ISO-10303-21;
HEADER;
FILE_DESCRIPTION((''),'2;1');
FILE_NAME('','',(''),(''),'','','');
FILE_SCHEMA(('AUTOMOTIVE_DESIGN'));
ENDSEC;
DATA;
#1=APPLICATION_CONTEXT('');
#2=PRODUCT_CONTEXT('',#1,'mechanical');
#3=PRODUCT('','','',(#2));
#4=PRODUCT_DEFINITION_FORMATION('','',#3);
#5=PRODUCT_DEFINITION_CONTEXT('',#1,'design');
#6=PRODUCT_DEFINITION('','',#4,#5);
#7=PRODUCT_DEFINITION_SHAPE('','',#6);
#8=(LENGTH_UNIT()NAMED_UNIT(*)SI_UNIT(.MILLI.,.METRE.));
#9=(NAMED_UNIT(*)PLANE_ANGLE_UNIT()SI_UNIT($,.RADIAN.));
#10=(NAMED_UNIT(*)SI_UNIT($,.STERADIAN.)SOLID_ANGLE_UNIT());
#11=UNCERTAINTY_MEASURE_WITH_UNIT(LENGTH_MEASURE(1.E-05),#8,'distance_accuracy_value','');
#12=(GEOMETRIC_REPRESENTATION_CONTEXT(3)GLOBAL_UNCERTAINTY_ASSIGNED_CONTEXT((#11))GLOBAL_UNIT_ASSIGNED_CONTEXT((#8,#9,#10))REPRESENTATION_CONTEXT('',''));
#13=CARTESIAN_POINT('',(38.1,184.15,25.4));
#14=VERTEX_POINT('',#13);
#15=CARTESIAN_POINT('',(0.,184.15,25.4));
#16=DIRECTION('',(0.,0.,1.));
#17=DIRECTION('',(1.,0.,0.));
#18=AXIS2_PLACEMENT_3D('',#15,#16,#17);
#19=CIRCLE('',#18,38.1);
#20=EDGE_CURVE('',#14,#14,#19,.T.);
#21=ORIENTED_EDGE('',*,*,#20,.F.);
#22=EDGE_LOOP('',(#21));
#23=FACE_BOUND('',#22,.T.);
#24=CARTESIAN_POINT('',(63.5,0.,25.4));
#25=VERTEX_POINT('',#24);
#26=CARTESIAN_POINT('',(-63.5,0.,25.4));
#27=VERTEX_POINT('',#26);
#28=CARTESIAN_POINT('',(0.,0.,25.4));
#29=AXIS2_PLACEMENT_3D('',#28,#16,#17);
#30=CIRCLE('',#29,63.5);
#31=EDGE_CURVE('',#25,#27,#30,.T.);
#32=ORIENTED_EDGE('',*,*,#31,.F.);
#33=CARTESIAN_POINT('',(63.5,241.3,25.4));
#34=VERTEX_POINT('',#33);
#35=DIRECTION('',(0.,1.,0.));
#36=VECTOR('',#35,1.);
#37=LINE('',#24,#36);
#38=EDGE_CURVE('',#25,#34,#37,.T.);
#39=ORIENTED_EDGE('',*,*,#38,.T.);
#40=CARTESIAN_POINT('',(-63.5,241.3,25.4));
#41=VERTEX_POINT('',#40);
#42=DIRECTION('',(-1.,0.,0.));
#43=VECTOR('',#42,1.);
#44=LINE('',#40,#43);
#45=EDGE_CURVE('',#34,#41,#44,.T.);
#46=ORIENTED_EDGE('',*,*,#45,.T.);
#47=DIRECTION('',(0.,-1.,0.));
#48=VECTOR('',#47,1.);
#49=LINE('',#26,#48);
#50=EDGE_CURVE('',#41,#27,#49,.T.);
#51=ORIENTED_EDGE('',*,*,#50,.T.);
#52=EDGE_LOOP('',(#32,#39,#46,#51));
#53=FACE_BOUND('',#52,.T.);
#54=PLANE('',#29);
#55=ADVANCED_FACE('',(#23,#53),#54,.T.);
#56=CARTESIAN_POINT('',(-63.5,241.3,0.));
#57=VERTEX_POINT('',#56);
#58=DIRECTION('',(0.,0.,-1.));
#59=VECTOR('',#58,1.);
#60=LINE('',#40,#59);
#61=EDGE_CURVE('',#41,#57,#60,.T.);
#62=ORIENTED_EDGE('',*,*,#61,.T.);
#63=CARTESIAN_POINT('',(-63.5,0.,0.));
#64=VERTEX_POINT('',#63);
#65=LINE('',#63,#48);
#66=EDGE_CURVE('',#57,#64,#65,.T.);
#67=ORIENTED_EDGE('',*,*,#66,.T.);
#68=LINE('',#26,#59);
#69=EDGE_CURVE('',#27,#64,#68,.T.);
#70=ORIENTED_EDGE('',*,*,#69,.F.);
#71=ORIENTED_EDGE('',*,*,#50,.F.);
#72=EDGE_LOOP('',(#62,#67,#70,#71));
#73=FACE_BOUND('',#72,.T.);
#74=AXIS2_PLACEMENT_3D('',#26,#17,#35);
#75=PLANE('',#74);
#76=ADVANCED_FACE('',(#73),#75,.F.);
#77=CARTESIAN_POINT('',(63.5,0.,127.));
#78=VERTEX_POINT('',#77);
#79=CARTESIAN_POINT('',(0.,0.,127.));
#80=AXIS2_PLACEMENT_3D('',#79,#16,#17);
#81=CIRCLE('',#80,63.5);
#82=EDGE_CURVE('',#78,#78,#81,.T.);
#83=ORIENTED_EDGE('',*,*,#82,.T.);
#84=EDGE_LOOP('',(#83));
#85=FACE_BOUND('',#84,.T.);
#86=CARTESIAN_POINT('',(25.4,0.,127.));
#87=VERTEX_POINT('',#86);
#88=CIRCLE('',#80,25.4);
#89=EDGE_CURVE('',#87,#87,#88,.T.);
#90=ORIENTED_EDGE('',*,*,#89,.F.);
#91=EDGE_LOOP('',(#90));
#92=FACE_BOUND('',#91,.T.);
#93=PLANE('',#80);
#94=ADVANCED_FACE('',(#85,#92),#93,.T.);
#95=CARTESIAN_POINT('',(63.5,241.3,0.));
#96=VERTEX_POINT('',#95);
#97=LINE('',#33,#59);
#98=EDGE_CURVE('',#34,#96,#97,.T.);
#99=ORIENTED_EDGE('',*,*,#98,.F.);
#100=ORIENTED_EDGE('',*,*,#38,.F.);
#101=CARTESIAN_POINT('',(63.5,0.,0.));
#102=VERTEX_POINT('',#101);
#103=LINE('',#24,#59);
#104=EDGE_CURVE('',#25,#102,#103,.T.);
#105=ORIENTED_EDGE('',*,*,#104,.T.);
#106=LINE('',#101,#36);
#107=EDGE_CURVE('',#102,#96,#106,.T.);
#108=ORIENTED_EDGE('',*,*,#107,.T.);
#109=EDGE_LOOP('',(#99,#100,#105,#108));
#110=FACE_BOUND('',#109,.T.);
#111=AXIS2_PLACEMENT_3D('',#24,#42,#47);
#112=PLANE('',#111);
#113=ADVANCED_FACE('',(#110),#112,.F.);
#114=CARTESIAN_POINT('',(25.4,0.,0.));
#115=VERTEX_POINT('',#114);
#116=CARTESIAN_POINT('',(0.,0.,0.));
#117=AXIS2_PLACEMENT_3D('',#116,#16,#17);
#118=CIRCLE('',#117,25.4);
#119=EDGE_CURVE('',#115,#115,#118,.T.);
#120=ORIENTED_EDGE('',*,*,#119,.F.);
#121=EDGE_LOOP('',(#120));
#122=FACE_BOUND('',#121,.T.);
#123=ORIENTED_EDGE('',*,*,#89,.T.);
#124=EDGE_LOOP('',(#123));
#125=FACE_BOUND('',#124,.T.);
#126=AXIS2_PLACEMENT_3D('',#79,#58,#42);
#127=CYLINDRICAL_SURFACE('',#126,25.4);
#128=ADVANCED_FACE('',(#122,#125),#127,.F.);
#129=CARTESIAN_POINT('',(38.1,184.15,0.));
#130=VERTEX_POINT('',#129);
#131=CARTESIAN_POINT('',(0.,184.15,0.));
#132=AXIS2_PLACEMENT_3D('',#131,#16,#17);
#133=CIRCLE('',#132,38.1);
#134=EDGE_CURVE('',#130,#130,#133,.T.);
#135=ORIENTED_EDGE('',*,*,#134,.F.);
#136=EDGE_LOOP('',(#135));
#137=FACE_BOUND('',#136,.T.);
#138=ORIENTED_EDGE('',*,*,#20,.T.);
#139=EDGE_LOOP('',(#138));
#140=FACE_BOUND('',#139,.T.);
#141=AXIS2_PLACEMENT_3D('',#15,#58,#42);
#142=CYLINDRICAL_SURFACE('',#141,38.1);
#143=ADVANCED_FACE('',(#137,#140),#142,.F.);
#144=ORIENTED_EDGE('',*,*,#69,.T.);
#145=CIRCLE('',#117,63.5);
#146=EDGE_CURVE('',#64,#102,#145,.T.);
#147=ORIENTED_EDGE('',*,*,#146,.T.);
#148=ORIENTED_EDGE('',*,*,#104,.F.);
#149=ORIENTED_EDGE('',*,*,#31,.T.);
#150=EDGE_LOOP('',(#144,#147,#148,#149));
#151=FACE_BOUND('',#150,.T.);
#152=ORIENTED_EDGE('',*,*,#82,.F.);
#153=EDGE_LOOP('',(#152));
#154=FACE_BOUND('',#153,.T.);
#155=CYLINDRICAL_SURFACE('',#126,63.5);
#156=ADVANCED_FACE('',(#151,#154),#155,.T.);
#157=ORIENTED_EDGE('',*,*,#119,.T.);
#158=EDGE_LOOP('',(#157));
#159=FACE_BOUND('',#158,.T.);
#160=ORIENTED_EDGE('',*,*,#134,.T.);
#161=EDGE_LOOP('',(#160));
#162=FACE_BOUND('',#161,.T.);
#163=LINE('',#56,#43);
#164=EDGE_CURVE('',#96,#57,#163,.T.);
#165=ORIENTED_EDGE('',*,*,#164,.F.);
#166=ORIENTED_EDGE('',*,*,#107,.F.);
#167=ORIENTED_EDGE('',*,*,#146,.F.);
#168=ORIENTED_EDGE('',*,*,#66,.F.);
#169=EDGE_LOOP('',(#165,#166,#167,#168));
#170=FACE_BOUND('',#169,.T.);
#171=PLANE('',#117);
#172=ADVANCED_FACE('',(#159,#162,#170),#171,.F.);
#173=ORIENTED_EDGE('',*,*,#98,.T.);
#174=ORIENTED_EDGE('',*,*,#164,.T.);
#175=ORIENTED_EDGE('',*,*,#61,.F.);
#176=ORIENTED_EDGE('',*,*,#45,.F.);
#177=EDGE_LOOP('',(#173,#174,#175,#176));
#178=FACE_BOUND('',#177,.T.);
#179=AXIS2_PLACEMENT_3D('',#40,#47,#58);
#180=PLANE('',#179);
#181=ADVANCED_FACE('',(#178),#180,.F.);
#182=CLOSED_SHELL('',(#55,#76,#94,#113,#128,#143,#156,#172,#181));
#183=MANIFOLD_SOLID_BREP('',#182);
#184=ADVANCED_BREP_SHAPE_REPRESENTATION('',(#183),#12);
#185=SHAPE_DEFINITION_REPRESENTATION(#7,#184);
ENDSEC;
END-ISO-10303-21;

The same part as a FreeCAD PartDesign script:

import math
import FreeCAD as App
import Part
import Sketcher
from FreeCAD import Vector
Q = App.Units.Quantity

doc = App.newDocument("Part")
body = doc.addObject("PartDesign::Body", "Body")

# Sketch on XY plane
sketch1 = body.newObject("Sketcher::SketchObject", "Sketch")
sketch1.AttachmentSupport = (doc.getObject("XY_Plane"), [""])
sketch1.MapMode = "FlatFace"
sketch1.addGeometry([
    Part.Circle(Vector(0, 0, 0), Vector(0, 0, 1), 63.5),
    Part.Circle(Vector(0, 0, 0), Vector(0, 0, 1), 25.4),
], False)
sketch1.addConstraint([
    Sketcher.Constraint("Coincident", 0, 3, -1, 1),
    Sketcher.Constraint("Coincident", 1, 3, -1, 1),
    Sketcher.Constraint("Diameter", 0, Q("5 in")),
    Sketcher.Constraint("Diameter", 1, Q("2 in")),
])
pad1 = body.newObject("PartDesign::Pad", "Pad")
pad1.Profile = sketch1
pad1.Length = Q("5 in")

# Sketch on XY plane
sketch2 = body.newObject("Sketcher::SketchObject", "Sketch001")
sketch2.AttachmentSupport = (doc.getObject("XY_Plane"), [""])
sketch2.MapMode = "FlatFace"
sketch2.addGeometry([
    Part.LineSegment(Vector(-63.5, 241.3, 0), Vector(-63.5, 0, 0)),  # 0
    Part.ArcOfCircle(Part.Circle(Vector(0, 0, 0), Vector(0, 0, 1), 63.5), math.radians(180), math.radians(360)),  # 1
    Part.LineSegment(Vector(63.5, 0, 0), Vector(63.5, 241.3, 0)),  # 2
    Part.LineSegment(Vector(63.5, 241.3, 0), Vector(-63.5, 241.3, 0)),  # 3
    Part.Circle(Vector(0, 0, 0), Vector(0, 0, 1), 25.4),  # 4
    Part.Circle(Vector(0, 184.15, 0), Vector(0, 0, 1), 38.1),  # 5
], False)
sketch2.addConstraint([
    Sketcher.Constraint("Tangent", 0, 2, 1, 1),
    Sketcher.Constraint("Tangent", 1, 2, 2, 1),
    Sketcher.Constraint("Coincident", 2, 2, 3, 1),
    Sketcher.Constraint("Coincident", 3, 2, 0, 1),
    Sketcher.Constraint("Vertical", 0),
    Sketcher.Constraint("Vertical", 2),
    Sketcher.Constraint("Horizontal", 3),
    Sketcher.Constraint("Coincident", 1, 3, -1, 1),
    Sketcher.Constraint("Coincident", 4, 3, -1, 1),
    Sketcher.Constraint("PointOnObject", 5, 3, -2),
    Sketcher.Constraint("Diameter", 4, Q("2 in")),
    Sketcher.Constraint("Diameter", 5, Q("3 in")),
    Sketcher.Constraint("Radius", 1, Q("2.5 in")),
    Sketcher.Constraint("DistanceY", 0, 2, 0, 1, Q("9.5 in")),
    Sketcher.Constraint("DistanceY", -1, 1, 5, 3, Q("7.25 in")),
])
pad2 = body.newObject("PartDesign::Pad", "Pad001")
pad2.Profile = sketch2
pad2.Length = Q("1 in")

doc.recompute()
